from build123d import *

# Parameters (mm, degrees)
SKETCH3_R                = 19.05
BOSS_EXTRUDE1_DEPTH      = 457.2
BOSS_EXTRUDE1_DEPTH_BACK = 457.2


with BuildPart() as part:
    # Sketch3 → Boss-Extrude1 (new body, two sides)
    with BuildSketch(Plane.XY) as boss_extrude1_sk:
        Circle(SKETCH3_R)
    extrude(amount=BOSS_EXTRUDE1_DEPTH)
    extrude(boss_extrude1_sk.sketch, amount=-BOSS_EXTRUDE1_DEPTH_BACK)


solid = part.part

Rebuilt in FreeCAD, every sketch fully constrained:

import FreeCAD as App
import Part
import Sketcher

V = App.Vector
Q = App.Units.Quantity

doc = App.newDocument("Part")
body = doc.addObject("PartDesign::Body", "Body")

sketch1 = body.newObject("Sketcher::SketchObject", "Sketch")
sketch1.AttachmentSupport = (doc.getObject("XY_Plane"), [""])
sketch1.MapMode = "FlatFace"
sketch1.addGeometry(Part.Circle(V(0, 0, 0), V(0, 0, 1), 19), False)
sketch1.addConstraint([
    Sketcher.Constraint("Coincident", 0, 3, -1, 1),
    Sketcher.Constraint("Diameter", 0, Q("1.5 in")),
])
pad1 = body.newObject("PartDesign::Pad", "Pad")
pad1.Profile = sketch1
pad1.Type = "TwoLengths"
pad1.Length = Q("18 in")
pad1.Length2 = Q("18 in")

doc.recompute()
